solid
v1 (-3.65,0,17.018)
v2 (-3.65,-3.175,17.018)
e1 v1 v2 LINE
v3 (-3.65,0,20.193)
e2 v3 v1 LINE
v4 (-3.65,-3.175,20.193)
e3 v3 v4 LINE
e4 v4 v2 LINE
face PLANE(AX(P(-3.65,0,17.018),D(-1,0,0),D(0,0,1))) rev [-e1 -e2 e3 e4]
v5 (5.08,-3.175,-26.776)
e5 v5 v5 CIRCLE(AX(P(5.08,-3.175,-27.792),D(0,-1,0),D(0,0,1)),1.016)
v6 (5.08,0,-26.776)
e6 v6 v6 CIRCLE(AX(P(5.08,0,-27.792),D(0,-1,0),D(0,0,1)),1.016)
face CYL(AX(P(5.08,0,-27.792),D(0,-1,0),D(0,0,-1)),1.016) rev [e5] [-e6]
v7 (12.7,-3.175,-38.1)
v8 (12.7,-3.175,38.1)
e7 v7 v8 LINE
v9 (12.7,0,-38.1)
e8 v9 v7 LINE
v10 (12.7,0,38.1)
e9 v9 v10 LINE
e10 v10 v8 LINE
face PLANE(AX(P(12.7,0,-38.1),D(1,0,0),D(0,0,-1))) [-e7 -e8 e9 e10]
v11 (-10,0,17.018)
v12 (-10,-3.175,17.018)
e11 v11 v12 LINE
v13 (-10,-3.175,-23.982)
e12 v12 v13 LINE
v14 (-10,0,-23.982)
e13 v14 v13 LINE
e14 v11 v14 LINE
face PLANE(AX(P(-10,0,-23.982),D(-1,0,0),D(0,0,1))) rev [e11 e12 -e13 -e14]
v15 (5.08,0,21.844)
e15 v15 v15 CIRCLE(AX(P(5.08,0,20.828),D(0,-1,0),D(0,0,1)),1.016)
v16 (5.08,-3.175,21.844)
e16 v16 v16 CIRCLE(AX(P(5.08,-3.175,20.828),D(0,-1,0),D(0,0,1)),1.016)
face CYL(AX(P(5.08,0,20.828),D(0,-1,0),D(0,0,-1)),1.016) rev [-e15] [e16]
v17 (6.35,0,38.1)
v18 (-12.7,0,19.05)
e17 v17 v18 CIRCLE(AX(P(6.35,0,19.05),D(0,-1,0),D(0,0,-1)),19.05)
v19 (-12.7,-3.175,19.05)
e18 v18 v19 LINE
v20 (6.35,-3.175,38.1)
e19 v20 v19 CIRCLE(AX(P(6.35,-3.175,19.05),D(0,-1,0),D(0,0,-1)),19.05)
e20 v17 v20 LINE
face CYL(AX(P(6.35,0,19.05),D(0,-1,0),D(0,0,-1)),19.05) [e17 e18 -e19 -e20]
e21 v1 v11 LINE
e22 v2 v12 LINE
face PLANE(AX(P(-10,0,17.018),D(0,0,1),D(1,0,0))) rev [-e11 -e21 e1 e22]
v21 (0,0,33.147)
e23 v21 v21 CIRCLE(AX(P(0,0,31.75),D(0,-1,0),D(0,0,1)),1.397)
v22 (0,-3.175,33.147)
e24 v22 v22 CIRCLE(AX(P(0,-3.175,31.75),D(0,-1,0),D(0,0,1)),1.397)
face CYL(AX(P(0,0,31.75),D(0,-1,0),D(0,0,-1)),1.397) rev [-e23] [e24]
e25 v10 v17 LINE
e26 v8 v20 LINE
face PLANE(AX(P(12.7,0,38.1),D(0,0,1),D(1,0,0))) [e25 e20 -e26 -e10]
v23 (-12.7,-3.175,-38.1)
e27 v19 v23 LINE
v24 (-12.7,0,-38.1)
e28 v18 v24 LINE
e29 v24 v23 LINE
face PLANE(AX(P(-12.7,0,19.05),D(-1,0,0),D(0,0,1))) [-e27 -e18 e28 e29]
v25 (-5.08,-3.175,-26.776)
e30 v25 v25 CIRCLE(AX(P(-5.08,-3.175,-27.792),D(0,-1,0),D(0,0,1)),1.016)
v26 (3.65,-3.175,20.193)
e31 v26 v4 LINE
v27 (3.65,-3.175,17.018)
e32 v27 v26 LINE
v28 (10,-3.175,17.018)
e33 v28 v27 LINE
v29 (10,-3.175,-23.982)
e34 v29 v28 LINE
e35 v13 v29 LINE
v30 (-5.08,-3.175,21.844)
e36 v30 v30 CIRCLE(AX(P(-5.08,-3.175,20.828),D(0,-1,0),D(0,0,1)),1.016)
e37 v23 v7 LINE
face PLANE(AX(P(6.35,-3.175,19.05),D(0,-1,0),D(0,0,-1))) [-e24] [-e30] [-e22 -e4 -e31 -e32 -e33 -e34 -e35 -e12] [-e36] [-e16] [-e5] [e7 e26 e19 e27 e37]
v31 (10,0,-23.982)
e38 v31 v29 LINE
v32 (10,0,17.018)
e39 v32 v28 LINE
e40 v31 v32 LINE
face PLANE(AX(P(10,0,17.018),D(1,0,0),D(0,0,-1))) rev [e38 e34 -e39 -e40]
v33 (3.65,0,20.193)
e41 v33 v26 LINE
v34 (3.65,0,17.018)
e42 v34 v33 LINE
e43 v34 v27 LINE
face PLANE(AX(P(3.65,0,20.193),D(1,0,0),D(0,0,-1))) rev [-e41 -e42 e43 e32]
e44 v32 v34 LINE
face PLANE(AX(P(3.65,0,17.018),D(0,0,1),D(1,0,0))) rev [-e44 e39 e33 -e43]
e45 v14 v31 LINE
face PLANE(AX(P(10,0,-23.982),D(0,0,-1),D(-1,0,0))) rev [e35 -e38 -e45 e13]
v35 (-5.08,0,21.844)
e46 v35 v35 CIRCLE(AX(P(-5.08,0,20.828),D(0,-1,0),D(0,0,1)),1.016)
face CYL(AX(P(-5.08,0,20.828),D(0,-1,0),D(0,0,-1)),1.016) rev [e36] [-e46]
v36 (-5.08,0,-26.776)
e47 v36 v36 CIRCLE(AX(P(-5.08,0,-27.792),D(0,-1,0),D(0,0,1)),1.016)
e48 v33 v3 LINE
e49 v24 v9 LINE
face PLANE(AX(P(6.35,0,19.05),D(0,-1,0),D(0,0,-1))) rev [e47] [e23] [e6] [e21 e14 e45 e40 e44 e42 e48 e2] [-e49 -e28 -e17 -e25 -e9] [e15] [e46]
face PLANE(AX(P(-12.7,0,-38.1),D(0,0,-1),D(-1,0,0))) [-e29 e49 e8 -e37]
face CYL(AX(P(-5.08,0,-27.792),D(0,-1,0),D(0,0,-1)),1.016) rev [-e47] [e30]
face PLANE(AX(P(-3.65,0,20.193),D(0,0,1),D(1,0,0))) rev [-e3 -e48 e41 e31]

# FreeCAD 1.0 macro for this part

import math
import FreeCAD as App
import Part
import Sketcher
Q = App.Units.Quantity


def add_polygon(sketch, points):
    """Adds a closed chain of lines whose ends are joined by coincident constraints."""
    first, n = sketch.GeometryCount, len(points)
    for a, b in zip(points, points[1:] + points[:1]):
        sketch.addGeometry(Part.LineSegment(App.Vector(*a, 0), App.Vector(*b, 0)), False)
    for i in range(n):
        sketch.addConstraint(Sketcher.Constraint("Coincident", first + i, 2, first + (i + 1) % n, 1))

doc = App.newDocument("Part")
body = doc.addObject("PartDesign::Body", "Body")

# Sketch on XZ plane
sketch1 = body.newObject("Sketcher::SketchObject", "Sketch")
sketch1.AttachmentSupport = (doc.getObject("XZ_Plane"), [""])
sketch1.MapMode = "FlatFace"
sketch1.AttachmentOffset = App.Placement(App.Vector(0, 0, 0.125 * 25.4), App.Rotation())
sketch1.addGeometry(Part.LineSegment(App.Vector(12.7, 38.1, 0), App.Vector(6.3, 38.1, 0)), False)  # 0
sketch1.addGeometry(Part.ArcOfCircle(Part.Circle(App.Vector(6.3, 19.1, 0), App.Vector(0, 0, 1), 19), math.radians(90), math.radians(180)), False)  # 1
sketch1.addGeometry(Part.LineSegment(App.Vector(-12.7, 19.1, 0), App.Vector(-12.7, -38.1, 0)), False)  # 2
sketch1.addGeometry(Part.LineSegment(App.Vector(-12.7, -38.1, 0), App.Vector(12.7, -38.1, 0)), False)  # 3
sketch1.addGeometry(Part.LineSegment(App.Vector(12.7, -38.1, 0), App.Vector(12.7, 38.1, 0)), False)  # 4
sketch1.addGeometry(Part.Circle(App.Vector(-5.1, -27.8, 0), App.Vector(0, 0, 1), 1), False)  # 5
sketch1.addGeometry(Part.Circle(App.Vector(5.1, -27.8, 0), App.Vector(0, 0, 1), 1), False)  # 6
add_polygon(sketch1, [(3.6, 20.2), (3.6, 17), (10, 17), (10, -24), (-10, -24), (-10, 17), (-3.6, 17), (-3.6, 20.2)])  # lines 7-14
sketch1.addGeometry(Part.Circle(App.Vector(-5.1, 20.8, 0), App.Vector(0, 0, 1), 1), False)  # 15
sketch1.addGeometry(Part.Circle(App.Vector(0, 31.8, 0), App.Vector(0, 0, 1), 1.4), False)  # 16
sketch1.addGeometry(Part.Circle(App.Vector(5.1, 20.8, 0), App.Vector(0, 0, 1), 1), False)  # 17
sketch1.addConstraint([
    Sketcher.Constraint("Tangent", 0, 2, 1, 1),
    Sketcher.Constraint("Tangent", 1, 2, 2, 1),
    Sketcher.Constraint("Coincident", 2, 2, 3, 1),
    Sketcher.Constraint("Coincident", 3, 2, 4, 1),
    Sketcher.Constraint("Coincident", 4, 2, 0, 1),
    Sketcher.Constraint("Horizontal", 0),
    Sketcher.Constraint("Vertical", 2),
    Sketcher.Constraint("Horizontal", 3),
    Sketcher.Constraint("Vertical", 4),
    Sketcher.Constraint("Vertical", 7),
    Sketcher.Constraint("Horizontal", 8),
    Sketcher.Constraint("Vertical", 9),
    Sketcher.Constraint("Horizontal", 10),
    Sketcher.Constraint("Vertical", 11),
    Sketcher.Constraint("Horizontal", 12),
    Sketcher.Constraint("Vertical", 13),
    Sketcher.Constraint("Horizontal", 14),
    Sketcher.Constraint("Equal", 5, 6),
    Sketcher.Constraint("Equal", 6, 15),
    Sketcher.Constraint("Equal", 15, 17),
    Sketcher.Constraint("Symmetric", 2, 2, 4, 2, -1, 1),
    Sketcher.Constraint("Symmetric", 5, 3, 6, 3, -2),
    Sketcher.Constraint("Symmetric", 15, 3, 17, 3, -2),
    Sketcher.Constraint("Symmetric", 8, 2, 11, 2, -2),
    Sketcher.Constraint("PointOnObject", 16, 3, -2),
    Sketcher.Constraint("Vertical", 5, 3, 15, 3),
    Sketcher.Constraint("Equal", 0, 8),
    Sketcher.Constraint("Equal", 8, 12),
    Sketcher.Constraint("Diameter", 5, Q("0.08 in")),
    Sketcher.Constraint("Diameter", 16, Q("0.11 in")),
    Sketcher.Constraint("DistanceX", 3, 1, 3, 2, Q("1 in")),
    Sketcher.Constraint("DistanceY", 4, 1, 4, 2, Q("3 in")),
    Sketcher.Constraint("Radius", 1, Q("0.75 in")),
    Sketcher.Constraint("DistanceX", 5, 3, -1, 1, Q("0.2 in")),
    Sketcher.Constraint("DistanceY", 1, 3, 16, 3, Q("0.5 in")),
    Sketcher.Constraint("DistanceY", 7, 2, 7, 1, Q("0.125 in")),
    Sketcher.Constraint("DistanceY", -1, 1, 15, 3, Q("0.82 in")),
    Sketcher.Constraint("DistanceY", -1, 1, 7, 2, Q("0.67 in")),
    Sketcher.Constraint("DistanceY", 6, 3, 9, 2, Q("0.15 in")),
    Sketcher.Constraint("DistanceX", 10, 2, 10, 1, 20.0),
    Sketcher.Constraint("DistanceY", 9, 2, 9, 1, 41.0),
])
pad1 = body.newObject("PartDesign::Pad", "Pad")
pad1.Profile = sketch1
pad1.Length = Q("0.125 in")
pad1.Reversed = True

doc.recompute()
